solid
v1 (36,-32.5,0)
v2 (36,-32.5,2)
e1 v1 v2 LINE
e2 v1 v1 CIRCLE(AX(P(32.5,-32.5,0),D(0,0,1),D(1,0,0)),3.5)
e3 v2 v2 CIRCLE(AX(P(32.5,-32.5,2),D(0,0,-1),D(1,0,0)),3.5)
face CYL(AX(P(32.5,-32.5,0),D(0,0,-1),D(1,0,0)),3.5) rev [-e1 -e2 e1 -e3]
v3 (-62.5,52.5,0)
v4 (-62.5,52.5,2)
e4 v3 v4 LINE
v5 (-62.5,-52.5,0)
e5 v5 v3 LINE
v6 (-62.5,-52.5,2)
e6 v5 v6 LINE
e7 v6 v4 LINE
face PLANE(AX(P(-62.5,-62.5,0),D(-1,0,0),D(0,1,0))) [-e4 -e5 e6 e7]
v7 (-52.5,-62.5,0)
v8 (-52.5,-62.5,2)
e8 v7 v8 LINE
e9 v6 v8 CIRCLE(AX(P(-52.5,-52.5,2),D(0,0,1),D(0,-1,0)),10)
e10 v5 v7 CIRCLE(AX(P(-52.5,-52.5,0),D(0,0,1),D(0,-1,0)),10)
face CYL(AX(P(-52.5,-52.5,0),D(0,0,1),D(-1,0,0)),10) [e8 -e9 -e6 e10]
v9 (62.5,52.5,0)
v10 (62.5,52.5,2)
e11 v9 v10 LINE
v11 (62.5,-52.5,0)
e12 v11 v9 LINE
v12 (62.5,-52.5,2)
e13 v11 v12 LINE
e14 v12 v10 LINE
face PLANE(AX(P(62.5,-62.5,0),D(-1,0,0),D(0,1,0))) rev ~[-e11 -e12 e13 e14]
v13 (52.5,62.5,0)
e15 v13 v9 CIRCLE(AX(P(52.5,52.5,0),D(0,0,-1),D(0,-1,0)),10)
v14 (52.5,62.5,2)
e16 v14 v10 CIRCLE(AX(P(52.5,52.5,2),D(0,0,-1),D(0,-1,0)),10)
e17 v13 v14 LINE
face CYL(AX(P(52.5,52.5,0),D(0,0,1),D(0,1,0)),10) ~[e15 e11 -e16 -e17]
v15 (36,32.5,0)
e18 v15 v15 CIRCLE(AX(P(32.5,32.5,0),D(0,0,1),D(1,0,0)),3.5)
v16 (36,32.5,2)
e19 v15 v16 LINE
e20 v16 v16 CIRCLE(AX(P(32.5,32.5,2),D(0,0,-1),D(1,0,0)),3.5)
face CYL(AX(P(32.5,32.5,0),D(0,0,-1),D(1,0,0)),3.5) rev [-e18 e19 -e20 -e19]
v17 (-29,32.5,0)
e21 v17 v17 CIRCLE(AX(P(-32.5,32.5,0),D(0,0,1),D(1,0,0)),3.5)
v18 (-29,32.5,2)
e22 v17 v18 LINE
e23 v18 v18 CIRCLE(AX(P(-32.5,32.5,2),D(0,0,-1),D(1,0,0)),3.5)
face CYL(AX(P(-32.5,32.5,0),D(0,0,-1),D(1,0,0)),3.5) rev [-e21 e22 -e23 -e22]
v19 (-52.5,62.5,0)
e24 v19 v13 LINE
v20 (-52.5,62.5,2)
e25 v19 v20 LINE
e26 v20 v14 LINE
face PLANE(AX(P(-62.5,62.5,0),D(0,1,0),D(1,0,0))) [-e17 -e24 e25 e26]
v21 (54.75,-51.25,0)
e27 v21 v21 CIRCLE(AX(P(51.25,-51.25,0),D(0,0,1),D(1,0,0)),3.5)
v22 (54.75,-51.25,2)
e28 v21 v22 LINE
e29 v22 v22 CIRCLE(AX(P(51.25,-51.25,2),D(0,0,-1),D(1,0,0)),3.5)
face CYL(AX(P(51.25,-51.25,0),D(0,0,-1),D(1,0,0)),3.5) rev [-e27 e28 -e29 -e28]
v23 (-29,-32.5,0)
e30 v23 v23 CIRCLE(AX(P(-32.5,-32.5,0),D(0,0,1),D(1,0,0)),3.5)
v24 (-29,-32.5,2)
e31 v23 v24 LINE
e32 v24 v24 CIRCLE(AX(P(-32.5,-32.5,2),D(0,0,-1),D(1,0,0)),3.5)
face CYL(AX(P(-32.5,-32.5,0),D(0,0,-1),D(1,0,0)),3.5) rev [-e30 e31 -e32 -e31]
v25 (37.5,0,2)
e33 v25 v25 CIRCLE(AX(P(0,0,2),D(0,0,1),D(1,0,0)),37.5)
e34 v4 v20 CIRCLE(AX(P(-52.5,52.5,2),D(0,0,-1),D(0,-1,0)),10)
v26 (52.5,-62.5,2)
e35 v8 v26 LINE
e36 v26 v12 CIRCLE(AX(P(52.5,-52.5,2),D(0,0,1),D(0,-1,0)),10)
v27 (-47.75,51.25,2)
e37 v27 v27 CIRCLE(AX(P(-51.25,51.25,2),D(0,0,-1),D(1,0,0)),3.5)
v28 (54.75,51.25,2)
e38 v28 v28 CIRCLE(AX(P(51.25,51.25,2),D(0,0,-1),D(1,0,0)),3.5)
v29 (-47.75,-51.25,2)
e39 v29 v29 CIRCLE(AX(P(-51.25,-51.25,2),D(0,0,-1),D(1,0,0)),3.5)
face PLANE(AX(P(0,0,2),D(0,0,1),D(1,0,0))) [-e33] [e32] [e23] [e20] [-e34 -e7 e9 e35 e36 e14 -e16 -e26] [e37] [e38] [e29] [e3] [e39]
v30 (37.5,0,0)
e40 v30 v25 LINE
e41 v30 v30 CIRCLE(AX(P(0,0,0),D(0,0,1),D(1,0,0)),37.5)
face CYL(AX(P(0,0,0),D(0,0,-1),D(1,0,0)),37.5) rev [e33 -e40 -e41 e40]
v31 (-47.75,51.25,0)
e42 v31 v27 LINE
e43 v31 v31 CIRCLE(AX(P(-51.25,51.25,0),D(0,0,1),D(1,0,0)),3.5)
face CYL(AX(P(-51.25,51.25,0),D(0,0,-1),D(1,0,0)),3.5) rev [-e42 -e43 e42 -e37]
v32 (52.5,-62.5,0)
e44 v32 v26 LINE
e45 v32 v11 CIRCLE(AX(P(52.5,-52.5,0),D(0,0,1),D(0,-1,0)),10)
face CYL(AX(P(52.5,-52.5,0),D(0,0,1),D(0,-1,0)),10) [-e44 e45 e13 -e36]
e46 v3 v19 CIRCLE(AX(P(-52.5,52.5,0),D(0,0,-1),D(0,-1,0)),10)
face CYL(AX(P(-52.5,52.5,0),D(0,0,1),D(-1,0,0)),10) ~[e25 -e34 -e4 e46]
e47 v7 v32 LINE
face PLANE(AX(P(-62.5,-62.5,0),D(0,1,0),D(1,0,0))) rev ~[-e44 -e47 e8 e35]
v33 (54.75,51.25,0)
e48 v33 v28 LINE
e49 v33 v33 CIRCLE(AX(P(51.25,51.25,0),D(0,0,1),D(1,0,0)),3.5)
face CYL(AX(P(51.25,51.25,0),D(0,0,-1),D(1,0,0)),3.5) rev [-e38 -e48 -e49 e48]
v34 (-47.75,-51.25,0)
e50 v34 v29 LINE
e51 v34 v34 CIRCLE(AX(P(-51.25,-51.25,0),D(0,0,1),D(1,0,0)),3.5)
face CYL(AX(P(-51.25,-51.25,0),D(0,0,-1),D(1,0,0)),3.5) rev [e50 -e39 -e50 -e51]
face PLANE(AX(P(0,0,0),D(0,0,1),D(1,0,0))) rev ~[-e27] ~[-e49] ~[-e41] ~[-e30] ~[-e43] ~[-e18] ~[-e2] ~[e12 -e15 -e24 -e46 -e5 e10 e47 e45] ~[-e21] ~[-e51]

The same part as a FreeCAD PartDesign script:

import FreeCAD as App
import Part
import Sketcher

V = App.Vector


def edges_at(feature, points):
    """Names of the edges that pass closest to the given points."""
    edges = feature.Shape.Edges
    near = lambda p: min(range(len(edges)), key=lambda i: edges[i].distToShape(Part.Vertex(*p))[0])
    return sorted({f"Edge{near(p) + 1}" for p in points})

doc = App.newDocument("Part")
body = doc.addObject("PartDesign::Body", "Body")

# Sketch on XY plane
sketch1 = body.newObject("Sketcher::SketchObject", "Sketch")
sketch1.AttachmentSupport = (doc.getObject("XY_Plane"), [""])
sketch1.MapMode = "FlatFace"
sketch1.addGeometry([
    Part.LineSegment(V(-62, 62, 0), V(-62, -62, 0)),  # 0
    Part.LineSegment(V(-62, -62, 0), V(62, -62, 0)),  # 1
    Part.LineSegment(V(62, -62, 0), V(62, 62, 0)),  # 2
    Part.LineSegment(V(62, 62, 0), V(-62, 62, 0)),  # 3
    Part.Circle(V(0, 0, 0), V(0, 0, 1), 38),  # 4
], False)
sketch1.addConstraint([
    Sketcher.Constraint("Coincident", 0, 2, 1, 1),
    Sketcher.Constraint("Coincident", 1, 2, 2, 1),
    Sketcher.Constraint("Coincident", 2, 2, 3, 1),
    Sketcher.Constraint("Coincident", 3, 2, 0, 1),
    Sketcher.Constraint("Vertical", 0),
    Sketcher.Constraint("Horizontal", 1),
    Sketcher.Constraint("Vertical", 2),
    Sketcher.Constraint("Horizontal", 3),
    Sketcher.Constraint("Coincident", 4, 3, -1, 1),
    Sketcher.Constraint("Symmetric", 0, 2, 2, 2, -1, 1),
    Sketcher.Constraint("Equal", 3, 0),
    Sketcher.Constraint("Diameter", 4, 75.0),
    Sketcher.Constraint("DistanceX", 1, 1, 1, 2, 125.0),
])
pad1 = body.newObject("PartDesign::Pad", "Pad")
pad1.Profile = sketch1
pad1.Length = 2

# Sketch on XY plane
sketch2 = body.newObject("Sketcher::SketchObject", "Sketch001")
sketch2.AttachmentSupport = (doc.getObject("XY_Plane"), [""])
sketch2.MapMode = "FlatFace"
sketch2.addGeometry([
    Part.Circle(V(-51.2, 51.2, 0), V(0, 0, 1), 3.5),  # 0
    Part.Circle(V(51.2, 51.2, 0), V(0, 0, 1), 3.5),  # 1
    Part.Circle(V(-51.2, -51.2, 0), V(0, 0, 1), 3.5),  # 2
    Part.Circle(V(51.2, -51.2, 0), V(0, 0, 1), 3.5),  # 3
    Part.Circle(V(-32.5, 32.5, 0), V(0, 0, 1), 3.5),  # 4
    Part.Circle(V(32.5, 32.5, 0), V(0, 0, 1), 3.5),  # 5
    Part.Circle(V(-32.5, -32.5, 0), V(0, 0, 1), 3.5),  # 6
    Part.Circle(V(32.5, -32.5, 0), V(0, 0, 1), 3.5),  # 7
], False)
sketch2.addConstraint([
    Sketcher.Constraint("Equal", 0, 1),
    Sketcher.Constraint("Equal", 1, 2),
    Sketcher.Constraint("Equal", 2, 3),
    Sketcher.Constraint("Equal", 3, 4),
    Sketcher.Constraint("Equal", 4, 5),
    Sketcher.Constraint("Equal", 5, 6),
    Sketcher.Constraint("Equal", 6, 7),
    Sketcher.Constraint("Symmetric", 1, 3, 2, 3, -1, 1),
    Sketcher.Constraint("Symmetric", 0, 3, 3, 3, -1, 1),
    Sketcher.Constraint("Symmetric", 5, 3, 6, 3, -1, 1),
    Sketcher.Constraint("Symmetric", 4, 3, 7, 3, -1, 1),
    Sketcher.Constraint("Symmetric", 0, 3, 1, 3, -2),
    Sketcher.Constraint("Symmetric", 4, 3, 5, 3, -2),
    Sketcher.Constraint("Diameter", 0, 7.0),
    Sketcher.Constraint("DistanceX", 4, 3, 5, 3, 65.0),
    Sketcher.Constraint("DistanceY", 6, 3, 4, 3, 65.0),
    Sketcher.Constraint("DistanceX", 0, 3, 1, 3, 102.5),
    Sketcher.Constraint("DistanceY", 2, 3, 0, 3, 102.5),
])
pocket1 = body.newObject("PartDesign::Pocket", "Pocket")
pocket1.Profile = sketch2
pocket1.Type = "ThroughAll"
pocket1.Reversed = True
doc.recompute()

fillet = body.newObject("PartDesign::Fillet", "Fillet")
fillet.Base = (pocket1, edges_at(pocket1, [
    (62.5, -62.5, 1),
    (62.5, 62.5, 1),
    (-62.5, -62.5, 1),
    (-62.5, 62.5, 1),
]))
fillet.Radius = 10

doc.recompute()
